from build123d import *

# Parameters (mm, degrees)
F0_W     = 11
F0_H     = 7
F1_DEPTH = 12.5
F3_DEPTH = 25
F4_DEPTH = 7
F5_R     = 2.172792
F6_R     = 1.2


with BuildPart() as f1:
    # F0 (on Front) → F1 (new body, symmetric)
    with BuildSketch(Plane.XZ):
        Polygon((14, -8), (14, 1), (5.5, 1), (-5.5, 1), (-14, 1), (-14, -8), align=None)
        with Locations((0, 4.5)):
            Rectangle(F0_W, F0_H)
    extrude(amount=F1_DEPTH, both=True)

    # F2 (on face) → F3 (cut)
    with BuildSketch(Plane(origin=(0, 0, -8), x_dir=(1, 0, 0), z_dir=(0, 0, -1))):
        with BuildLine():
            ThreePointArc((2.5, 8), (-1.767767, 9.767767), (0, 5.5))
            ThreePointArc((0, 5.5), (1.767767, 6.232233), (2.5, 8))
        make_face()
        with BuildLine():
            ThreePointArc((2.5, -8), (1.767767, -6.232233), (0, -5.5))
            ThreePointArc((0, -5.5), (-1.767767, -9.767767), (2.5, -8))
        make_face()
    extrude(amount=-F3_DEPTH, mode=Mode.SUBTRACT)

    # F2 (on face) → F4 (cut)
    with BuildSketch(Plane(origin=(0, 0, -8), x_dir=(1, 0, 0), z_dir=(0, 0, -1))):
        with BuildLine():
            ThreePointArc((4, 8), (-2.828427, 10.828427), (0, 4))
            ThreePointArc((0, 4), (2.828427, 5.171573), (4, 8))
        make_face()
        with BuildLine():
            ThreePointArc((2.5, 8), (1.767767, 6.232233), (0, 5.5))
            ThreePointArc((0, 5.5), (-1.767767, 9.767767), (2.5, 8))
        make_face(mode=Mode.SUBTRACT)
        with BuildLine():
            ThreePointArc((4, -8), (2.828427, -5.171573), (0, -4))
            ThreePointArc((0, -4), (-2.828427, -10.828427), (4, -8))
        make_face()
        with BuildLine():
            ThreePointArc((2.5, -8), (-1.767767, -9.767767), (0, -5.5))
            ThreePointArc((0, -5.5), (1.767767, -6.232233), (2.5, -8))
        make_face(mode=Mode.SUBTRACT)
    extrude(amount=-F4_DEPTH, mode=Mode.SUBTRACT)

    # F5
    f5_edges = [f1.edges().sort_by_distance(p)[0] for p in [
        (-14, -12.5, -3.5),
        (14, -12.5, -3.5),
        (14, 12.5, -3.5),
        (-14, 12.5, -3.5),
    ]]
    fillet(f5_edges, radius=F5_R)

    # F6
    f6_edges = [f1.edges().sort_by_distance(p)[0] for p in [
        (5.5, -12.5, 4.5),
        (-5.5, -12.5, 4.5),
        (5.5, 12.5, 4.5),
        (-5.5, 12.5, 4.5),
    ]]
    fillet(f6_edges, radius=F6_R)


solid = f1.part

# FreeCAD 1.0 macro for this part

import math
import FreeCAD as App
import Part
import Sketcher

V = App.Vector
Q = App.Units.Quantity


def edges_at(feature, points):
    """Names of the edges that pass closest to the given points."""
    edges = feature.Shape.Edges
    near = lambda p: min(range(len(edges)), key=lambda i: edges[i].distToShape(Part.Vertex(*p))[0])
    return sorted({f"Edge{near(p) + 1}" for p in points})


def add_polygon(sketch, points):
    """Adds a closed chain of lines whose ends are joined by coincident constraints."""
    first, n = sketch.GeometryCount, len(points)
    for a, b in zip(points, points[1:] + points[:1]):
        sketch.addGeometry(Part.LineSegment(App.Vector(*a, 0), App.Vector(*b, 0)), False)
    for i in range(n):
        sketch.addConstraint(Sketcher.Constraint("Coincident", first + i, 2, first + (i + 1) % n, 1))

doc = App.newDocument("Part")
body = doc.addObject("PartDesign::Body", "Body")

# Sketch on XZ plane
sketch1 = body.newObject("Sketcher::SketchObject", "Sketch")
sketch1.AttachmentSupport = (doc.getObject("XZ_Plane"), [""])
sketch1.MapMode = "FlatFace"
add_polygon(sketch1, [(14, -8), (14, 1), (6, 1), (6, 8), (-6, 8), (-6, 1), (-14, 1), (-14, -8)])  # lines 0-7
sketch1.addConstraint([
    Sketcher.Constraint("Vertical", 0),
    Sketcher.Constraint("Horizontal", 1),
    Sketcher.Constraint("Vertical", 2),
    Sketcher.Constraint("Horizontal", 3),
    Sketcher.Constraint("Vertical", 4),
    Sketcher.Constraint("Horizontal", 5),
    Sketcher.Constraint("Vertical", 6),
    Sketcher.Constraint("Horizontal", 7),
    Sketcher.Constraint("Symmetric", 1, 2, 4, 2, -2),
    Sketcher.Constraint("Equal", 1, 5),
    Sketcher.Constraint("DistanceX", 3, 2, 3, 1, Q("11 mm")),
    Sketcher.Constraint("DistanceX", 7, 1, 7, 2, Q("28 mm")),
    Sketcher.Constraint("DistanceY", 0, 1, 0, 2, Q("9 mm")),
    Sketcher.Constraint("DistanceY", 2, 1, 2, 2, Q("7 mm")),
    Sketcher.Constraint("DistanceY", -1, 1, 0, 2, Q("1 mm")),
])
pad1 = body.newObject("PartDesign::Pad", "Pad")
pad1.Profile = sketch1
pad1.Length = 25
pad1.Midplane = True

# Sketch on XY plane
sketch2 = body.newObject("Sketcher::SketchObject", "Sketch001")
sketch2.AttachmentSupport = (doc.getObject("XY_Plane"), [""])
sketch2.MapMode = "FlatFace"
sketch2.AttachmentOffset = App.Placement(V(0, 0, -8), App.Rotation())
sketch2.addGeometry([
    Part.ArcOfCircle(Part.Circle(V(0, -8, 0), V(0, 0, 1), 2.5), math.radians(90), math.radians(360)),
    Part.ArcOfCircle(Part.Circle(V(0, -8, 0), V(0, 0, 1), 2.5), math.radians(0), math.radians(90)),
    Part.ArcOfCircle(Part.Circle(V(0, 8, 0), V(0, 0, 1), 2.5), math.radians(-90), math.radians(0)),
    Part.ArcOfCircle(Part.Circle(V(0, 8, 0), V(0, 0, 1), 2.5), math.radians(0), math.radians(270)),
], False)
sketch2.addConstraint([
    Sketcher.Constraint("Tangent", 0, 1, 1, 2),
    Sketcher.Constraint("Coincident", 1, 1, 0, 2),
    Sketcher.Constraint("Tangent", 2, 1, 3, 2),
    Sketcher.Constraint("Coincident", 3, 1, 2, 2),
    Sketcher.Constraint("Equal", 1, 2),
    Sketcher.Constraint("Symmetric", 0, 3, 2, 3, -1, 1),
    Sketcher.Constraint("Symmetric", 1, 1, 3, 1, -1),
    Sketcher.Constraint("PointOnObject", 0, 1, -2),
    Sketcher.Constraint("PointOnObject", 2, 1, -2),
    Sketcher.Constraint("Horizontal", 0, 3, 1, 1),
    Sketcher.Constraint("Radius", 0, Q("2.5 mm")),
    Sketcher.Constraint("DistanceY", 0, 3, -1, 1, Q("8 mm")),
])
pocket1 = body.newObject("PartDesign::Pocket", "Pocket")
pocket1.Profile = sketch2
pocket1.Length = 25
pocket1.Reversed = True

# Sketch on XY plane
sketch3 = body.newObject("Sketcher::SketchObject", "Sketch002")
sketch3.AttachmentSupport = (doc.getObject("XY_Plane"), [""])
sketch3.MapMode = "FlatFace"
sketch3.AttachmentOffset = App.Placement(V(0, 0, -8), App.Rotation())
sketch3.addGeometry([
    Part.ArcOfCircle(Part.Circle(V(0, -8, 0), V(0, 0, 1), 4), math.radians(90), math.radians(360)),  # 0
    Part.ArcOfCircle(Part.Circle(V(0, -8, 0), V(0, 0, 1), 4), math.radians(0), math.radians(90)),  # 1
    Part.ArcOfCircle(Part.Circle(V(0, -8, 0), V(0, 0, 1), 2.5), math.radians(90), math.radians(360)),  # 2
    Part.ArcOfCircle(Part.Circle(V(0, -8, 0), V(0, 0, 1), 2.5), math.radians(0), math.radians(90)),  # 3
    Part.ArcOfCircle(Part.Circle(V(0, 8, 0), V(0, 0, 1), 4), math.radians(-90), math.radians(0)),  # 4
    Part.ArcOfCircle(Part.Circle(V(0, 8, 0), V(0, 0, 1), 4), math.radians(0), math.radians(270)),  # 5
    Part.ArcOfCircle(Part.Circle(V(0, 8, 0), V(0, 0, 1), 2.5), math.radians(-90), math.radians(0)),  # 6
    Part.ArcOfCircle(Part.Circle(V(0, 8, 0), V(0, 0, 1), 2.5), math.radians(0), math.radians(270)),  # 7
], False)
sketch3.addConstraint([
    Sketcher.Constraint("Tangent", 0, 1, 1, 2),
    Sketcher.Constraint("Coincident", 1, 1, 0, 2),
    Sketcher.Constraint("Tangent", 2, 1, 3, 2),
    Sketcher.Constraint("Coincident", 3, 1, 2, 2),
    Sketcher.Constraint("Tangent", 4, 1, 5, 2),
    Sketcher.Constraint("Coincident", 5, 1, 4, 2),
    Sketcher.Constraint("Tangent", 6, 1, 7, 2),
    Sketcher.Constraint("Coincident", 7, 1, 6, 2),
    Sketcher.Constraint("Coincident", 2, 3, 0, 3),
    Sketcher.Constraint("Coincident", 6, 3, 4, 3),
    Sketcher.Constraint("Equal", 1, 4),
    Sketcher.Constraint("Equal", 3, 6),
    Sketcher.Constraint("Symmetric", 0, 3, 4, 3, -1, 1),
    Sketcher.Constraint("Symmetric", 1, 1, 5, 1, -1),
    Sketcher.Constraint("PointOnObject", 0, 1, -2),
    Sketcher.Constraint("PointOnObject", 2, 1, -2),
    Sketcher.Constraint("PointOnObject", 4, 1, -2),
    Sketcher.Constraint("PointOnObject", 6, 1, -2),
    Sketcher.Constraint("Horizontal", 3, 3, 1, 1),
    Sketcher.Constraint("Horizontal", 1, 1, 3, 1),
    Sketcher.Constraint("Horizontal", 5, 1, 7, 1),
    Sketcher.Constraint("Radius", 0, Q("4 mm")),
    Sketcher.Constraint("Radius", 2, Q("2.5 mm")),
    Sketcher.Constraint("DistanceY", 0, 3, -1, 1, Q("8 mm")),
])
pocket2 = body.newObject("PartDesign::Pocket", "Pocket001")
pocket2.Profile = sketch3
pocket2.Length = 7
pocket2.Reversed = True
doc.recompute()

fillet = body.newObject("PartDesign::Fillet", "Fillet")
fillet.Base = (pocket2, edges_at(pocket2, [
    (-14, -12.5, -3.5),
    (14, -12.5, -3.5),
    (14, 12.5, -3.5),
    (-14, 12.5, -3.5),
]))
fillet.Radius = 2.172792
doc.recompute()

fillet2 = body.newObject("PartDesign::Fillet", "Fillet001")
fillet2.Base = (fillet, edges_at(fillet, [
    (5.5, -12.5, 4.5),
    (-5.5, -12.5, 4.5),
    (5.5, 12.5, 4.5),
    (-5.5, 12.5, 4.5),
]))
fillet2.Radius = 1.2

doc.recompute()
